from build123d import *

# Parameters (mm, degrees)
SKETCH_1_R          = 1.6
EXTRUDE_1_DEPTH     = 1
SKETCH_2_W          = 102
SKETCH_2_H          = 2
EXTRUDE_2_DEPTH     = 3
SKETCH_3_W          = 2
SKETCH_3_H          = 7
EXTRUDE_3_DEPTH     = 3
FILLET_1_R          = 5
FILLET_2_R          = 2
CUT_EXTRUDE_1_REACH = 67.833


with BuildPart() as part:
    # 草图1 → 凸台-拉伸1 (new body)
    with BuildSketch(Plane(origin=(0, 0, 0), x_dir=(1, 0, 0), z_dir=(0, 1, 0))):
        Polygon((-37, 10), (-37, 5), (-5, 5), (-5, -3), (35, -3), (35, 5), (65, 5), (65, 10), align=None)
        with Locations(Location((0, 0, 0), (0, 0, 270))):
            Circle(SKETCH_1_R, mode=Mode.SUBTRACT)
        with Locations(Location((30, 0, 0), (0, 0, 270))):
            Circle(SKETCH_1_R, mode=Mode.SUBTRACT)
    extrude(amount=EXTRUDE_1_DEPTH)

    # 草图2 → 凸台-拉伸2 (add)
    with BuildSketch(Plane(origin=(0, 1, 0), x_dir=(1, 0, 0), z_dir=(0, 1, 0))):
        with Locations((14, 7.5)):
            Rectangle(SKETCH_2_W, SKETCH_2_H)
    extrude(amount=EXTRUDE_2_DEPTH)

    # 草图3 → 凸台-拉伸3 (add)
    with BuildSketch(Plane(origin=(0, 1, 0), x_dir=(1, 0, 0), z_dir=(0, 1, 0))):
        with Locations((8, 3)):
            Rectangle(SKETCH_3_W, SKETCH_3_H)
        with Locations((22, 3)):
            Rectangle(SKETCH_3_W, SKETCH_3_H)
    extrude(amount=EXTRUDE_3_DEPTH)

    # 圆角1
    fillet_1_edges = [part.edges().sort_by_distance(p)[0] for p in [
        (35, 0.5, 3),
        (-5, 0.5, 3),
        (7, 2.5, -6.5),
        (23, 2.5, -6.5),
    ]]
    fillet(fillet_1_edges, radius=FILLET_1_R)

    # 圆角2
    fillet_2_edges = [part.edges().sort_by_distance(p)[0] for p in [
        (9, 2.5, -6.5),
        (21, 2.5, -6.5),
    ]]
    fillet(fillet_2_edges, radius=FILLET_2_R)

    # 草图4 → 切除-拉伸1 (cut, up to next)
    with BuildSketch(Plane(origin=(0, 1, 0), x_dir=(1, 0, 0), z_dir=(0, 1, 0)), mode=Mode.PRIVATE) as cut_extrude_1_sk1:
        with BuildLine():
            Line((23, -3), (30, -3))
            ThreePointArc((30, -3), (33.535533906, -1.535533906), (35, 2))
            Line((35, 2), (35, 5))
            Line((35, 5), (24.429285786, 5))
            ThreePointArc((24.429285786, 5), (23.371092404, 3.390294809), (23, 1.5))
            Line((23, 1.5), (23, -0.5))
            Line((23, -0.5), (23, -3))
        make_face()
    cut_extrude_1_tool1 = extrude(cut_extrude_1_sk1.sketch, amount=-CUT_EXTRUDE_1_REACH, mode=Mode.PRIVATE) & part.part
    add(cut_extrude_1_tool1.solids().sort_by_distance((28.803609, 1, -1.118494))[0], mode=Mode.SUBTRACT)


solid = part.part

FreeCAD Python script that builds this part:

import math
import FreeCAD as App
import Part
import Sketcher
Q = App.Units.Quantity


def edges_at(feature, points):
    """Names of the edges that pass closest to the given points."""
    edges = feature.Shape.Edges
    near = lambda p: min(range(len(edges)), key=lambda i: edges[i].distToShape(Part.Vertex(*p))[0])
    return sorted({f"Edge{near(p) + 1}" for p in points})


def add_polygon(sketch, points):
    """Adds a closed chain of lines whose ends are joined by coincident constraints."""
    first, n = sketch.GeometryCount, len(points)
    for a, b in zip(points, points[1:] + points[:1]):
        sketch.addGeometry(Part.LineSegment(App.Vector(*a, 0), App.Vector(*b, 0)), False)
    for i in range(n):
        sketch.addConstraint(Sketcher.Constraint("Coincident", first + i, 2, first + (i + 1) % n, 1))

doc = App.newDocument("Part")
body = doc.addObject("PartDesign::Body", "Body")

# Sketch on XZ plane
sketch1 = body.newObject("Sketcher::SketchObject", "Sketch")
sketch1.AttachmentSupport = (doc.getObject("XZ_Plane"), [""])
sketch1.MapMode = "FlatFace"
add_polygon(sketch1, [(-37, -10), (-37, -5), (-5, -5), (-5, 3), (35, 3), (35, -5), (65, -5), (65, -10)])  # lines 0-7
sketch1.addGeometry(Part.Circle(App.Vector(0, 0, 0), App.Vector(0, 0, 1), 1.6), False)  # 8
sketch1.addGeometry(Part.Circle(App.Vector(30, 0, 0), App.Vector(0, 0, 1), 1.6), False)  # 9
sketch1.addConstraint([
    Sketcher.Constraint("Vertical", 0),
    Sketcher.Constraint("Horizontal", 1),
    Sketcher.Constraint("Vertical", 2),
    Sketcher.Constraint("Horizontal", 3),
    Sketcher.Constraint("Vertical", 4),
    Sketcher.Constraint("Horizontal", 5),
    Sketcher.Constraint("Vertical", 6),
    Sketcher.Constraint("Horizontal", 7),
    Sketcher.Constraint("Coincident", 8, 3, -1, 1),
    Sketcher.Constraint("Equal", 8, 9),
    Sketcher.Constraint("PointOnObject", 9, 3, -1),
    Sketcher.Constraint("Horizontal", 1, 2, 4, 2),
    Sketcher.Constraint("Diameter", 8, Q("3.2 mm")),
    Sketcher.Constraint("DistanceX", 1, 1, 1, 2, Q("32 mm")),
    Sketcher.Constraint("DistanceX", 3, 1, 3, 2, Q("40 mm")),
    Sketcher.Constraint("DistanceX", 5, 1, 5, 2, Q("30 mm")),
    Sketcher.Constraint("DistanceY", 0, 1, 0, 2, Q("5 mm")),
    Sketcher.Constraint("DistanceY", 2, 1, 2, 2, Q("8 mm")),
    Sketcher.Constraint("DistanceX", -1, 1, 9, 3, Q("30 mm")),
    Sketcher.Constraint("DistanceX", 0, 2, -1, 1, Q("37 mm")),
    Sketcher.Constraint("DistanceY", 0, 2, -1, 1, Q("5 mm")),
])
pad1 = body.newObject("PartDesign::Pad", "Pad")
pad1.Profile = sketch1
pad1.Length = 1
pad1.Reversed = True

# Sketch on XZ plane
sketch2 = body.newObject("Sketcher::SketchObject", "Sketch001")
sketch2.AttachmentSupport = (doc.getObject("XZ_Plane"), [""])
sketch2.MapMode = "FlatFace"
sketch2.AttachmentOffset = App.Placement(App.Vector(0, 0, -1), App.Rotation())
add_polygon(sketch2, [(-37, -8.5), (-37, -6.5), (65, -6.5), (65, -8.5)])  # lines 0-3
sketch2.addConstraint([
    Sketcher.Constraint("Vertical", 0),
    Sketcher.Constraint("Horizontal", 1),
    Sketcher.Constraint("Vertical", 2),
    Sketcher.Constraint("Horizontal", 3),
    Sketcher.Constraint("DistanceX", 1, 1, 1, 2, Q("102 mm")),
    Sketcher.Constraint("DistanceY", 0, 1, 0, 2, Q("2 mm")),
    Sketcher.Constraint("DistanceX", 0, 2, -1, 1, Q("37 mm")),
    Sketcher.Constraint("DistanceY", 0, 2, -1, 1, Q("6.5 mm")),
])
pad2 = body.newObject("PartDesign::Pad", "Pad001")
pad2.Profile = sketch2
pad2.Length = 3
pad2.Reversed = True

# Sketch on XZ plane
sketch3 = body.newObject("Sketcher::SketchObject", "Sketch002")
sketch3.AttachmentSupport = (doc.getObject("XZ_Plane"), [""])
sketch3.MapMode = "FlatFace"
sketch3.AttachmentOffset = App.Placement(App.Vector(0, 0, -1), App.Rotation())
add_polygon(sketch3, [(7, -6.5), (7, 0.5), (9, 0.5), (9, -6.5)])  # lines 0-3
add_polygon(sketch3, [(21, -6.5), (21, 0.5), (23, 0.5), (23, -6.5)])  # lines 4-7
sketch3.addConstraint([
    Sketcher.Constraint("Vertical", 0),
    Sketcher.Constraint("Horizontal", 1),
    Sketcher.Constraint("Vertical", 2),
    Sketcher.Constraint("Horizontal", 3),
    Sketcher.Constraint("Vertical", 4),
    Sketcher.Constraint("Horizontal", 5),
    Sketcher.Constraint("Vertical", 6),
    Sketcher.Constraint("Horizontal", 7),
    Sketcher.Constraint("Horizontal", 1, 2, 4, 2),
    Sketcher.Constraint("Horizontal", 3, 2, 6, 2),
    Sketcher.Constraint("Equal", 3, 5),
    Sketcher.Constraint("DistanceX", 1, 1, 1, 2, Q("2 mm")),
    Sketcher.Constraint("DistanceY", 0, 1, 0, 2, Q("7 mm")),
    Sketcher.Constraint("DistanceX", -1, 1, 0, 2, Q("7 mm")),
    Sketcher.Constraint("DistanceX", -1, 1, 4, 2, Q("21 mm")),
    Sketcher.Constraint("DistanceY", -1, 1, 0, 2, Q("0.5 mm")),
])
pad3 = body.newObject("PartDesign::Pad", "Pad002")
pad3.Profile = sketch3
pad3.Length = 3
pad3.Reversed = True
doc.recompute()

fillet = body.newObject("PartDesign::Fillet", "Fillet")
fillet.Base = (pad3, edges_at(pad3, [
    (35, 0.5, 3),
    (-5, 0.5, 3),
    (7, 2.5, -6.5),
    (23, 2.5, -6.5),
]))
fillet.Radius = 5
doc.recompute()

fillet2 = body.newObject("PartDesign::Fillet", "Fillet001")
fillet2.Base = (fillet, edges_at(fillet, [(9, 2.5, -6.5), (21, 2.5, -6.5)]))
fillet2.Radius = 2

# Sketch on XZ plane
sketch4 = body.newObject("Sketcher::SketchObject", "Sketch003")
sketch4.AttachmentSupport = (doc.getObject("XZ_Plane"), [""])
sketch4.MapMode = "FlatFace"
sketch4.AttachmentOffset = App.Placement(App.Vector(0, 0, -1), App.Rotation())
sketch4.addGeometry([
    Part.LineSegment(App.Vector(23, 3, 0), App.Vector(30, 3, 0)),  # 0
    Part.ArcOfCircle(Part.Circle(App.Vector(30, -2, 0), App.Vector(0, 0, 1), 5), math.radians(0), math.radians(90)),  # 1
    Part.LineSegment(App.Vector(35, -2, 0), App.Vector(35, -5, 0)),  # 2
    Part.LineSegment(App.Vector(35, -5, 0), App.Vector(24.4, -5, 0)),  # 3
    Part.ArcOfCircle(Part.Circle(App.Vector(28, -1.5, 0), App.Vector(0, 0, 1), 5), math.radians(-180), math.radians(-136)),  # 4
    Part.LineSegment(App.Vector(23, -1.5, 0), App.Vector(23, 3, 0)),  # 5
], False)
sketch4.addConstraint([
    Sketcher.Constraint("Tangent", 0, 2, 1, 2),
    Sketcher.Constraint("Tangent", 1, 1, 2, 1),
    Sketcher.Constraint("Coincident", 2, 2, 3, 1),
    Sketcher.Constraint("Coincident", 3, 2, 4, 2),
    Sketcher.Constraint("Tangent", 4, 1, 5, 1),
    Sketcher.Constraint("Coincident", 5, 2, 0, 1),
    Sketcher.Constraint("Horizontal", 0),
    Sketcher.Constraint("Vertical", 2),
    Sketcher.Constraint("Horizontal", 3),
    Sketcher.Constraint("Vertical", 5),
    Sketcher.Constraint("Equal", 1, 4),
    Sketcher.Constraint("Radius", 1, Q("5 mm")),
    Sketcher.Constraint("DistanceX", 0, 1, 0, 2, Q("7 mm")),
    Sketcher.Constraint("DistanceY", 2, 2, 2, 1, Q("3 mm")),
    Sketcher.Constraint("DistanceY", 5, 1, 5, 2, Q("4.5 mm")),
    Sketcher.Constraint("DistanceX", -1, 1, 1, 3, Q("30 mm")),
    Sketcher.Constraint("DistanceY", 1, 3, -1, 1, Q("2 mm")),
])
pocket1 = body.newObject("PartDesign::Pocket", "Pocket")
pocket1.Profile = sketch4
pocket1.Type = "UpToFirst"
pocket1.Reversed = True

doc.recompute()
